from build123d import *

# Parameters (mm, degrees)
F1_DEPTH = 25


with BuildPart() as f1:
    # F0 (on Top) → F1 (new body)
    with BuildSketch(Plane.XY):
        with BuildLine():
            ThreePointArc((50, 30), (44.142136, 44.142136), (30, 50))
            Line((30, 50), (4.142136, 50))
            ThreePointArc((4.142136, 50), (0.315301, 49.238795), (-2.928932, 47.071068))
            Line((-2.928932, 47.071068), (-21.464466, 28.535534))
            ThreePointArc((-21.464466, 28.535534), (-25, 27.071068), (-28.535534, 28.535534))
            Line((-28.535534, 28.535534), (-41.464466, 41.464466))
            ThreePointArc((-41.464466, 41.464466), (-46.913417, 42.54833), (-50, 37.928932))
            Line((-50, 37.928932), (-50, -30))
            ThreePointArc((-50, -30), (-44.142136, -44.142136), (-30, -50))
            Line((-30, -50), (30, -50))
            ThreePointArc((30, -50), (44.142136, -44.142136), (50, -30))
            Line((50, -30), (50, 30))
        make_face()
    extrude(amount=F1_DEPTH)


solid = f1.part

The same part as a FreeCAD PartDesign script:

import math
import FreeCAD as App
import Part
import Sketcher
Q = App.Units.Quantity

doc = App.newDocument("Part")
params = doc.addObject("Spreadsheet::Sheet", "Params")
for row, (alias, value) in enumerate([
    ("sketch1_radius", "19.999999 mm"),
    ("sketch1_radius2", "5 mm"),
    ("sketch1_width", "60 mm"),
    ("pad1_length", "25 mm"),
], start=1):
    params.set(f"A{row}", alias)
    params.set(f"B{row}", "=" + value)
    params.setAlias(f"B{row}", alias)

body = doc.addObject("PartDesign::Body", "Body")

# Sketch on XY plane
sketch1 = body.newObject("Sketcher::SketchObject", "Sketch")
sketch1.AttachmentSupport = (doc.getObject("XY_Plane"), [""])
sketch1.MapMode = "FlatFace"
sketch1.addGeometry([
    Part.ArcOfCircle(Part.Circle(App.Vector(30, 30, 0), App.Vector(0, 0, 1), 20), math.radians(0), math.radians(90)),  # 0
    Part.LineSegment(App.Vector(30, 50, 0), App.Vector(4.1, 50, 0)),  # 1
    Part.ArcOfCircle(Part.Circle(App.Vector(4.1, 40, 0), App.Vector(0, 0, 1), 10), math.radians(90), math.radians(135)),  # 2
    Part.LineSegment(App.Vector(-2.9, 47.1, 0), App.Vector(-21.5, 28.5, 0)),  # 3
    Part.ArcOfCircle(Part.Circle(App.Vector(-25, 32.1, 0), App.Vector(0, 0, 1), 5), math.radians(-135), math.radians(-45)),  # 4
    Part.LineSegment(App.Vector(-28.5, 28.5, 0), App.Vector(-41.5, 41.5, 0)),  # 5
    Part.ArcOfCircle(Part.Circle(App.Vector(-45, 37.9, 0), App.Vector(0, 0, 1), 5), math.radians(45), math.radians(180)),  # 6
    Part.LineSegment(App.Vector(-50, 37.9, 0), App.Vector(-50, -30, 0)),  # 7
    Part.ArcOfCircle(Part.Circle(App.Vector(-30, -30, 0), App.Vector(0, 0, 1), 20), math.radians(180), math.radians(270)),  # 8
    Part.LineSegment(App.Vector(-30, -50, 0), App.Vector(30, -50, 0)),  # 9
    Part.ArcOfCircle(Part.Circle(App.Vector(30, -30, 0), App.Vector(0, 0, 1), 20), math.radians(-90), math.radians(0)),  # 10
    Part.LineSegment(App.Vector(50, -30, 0), App.Vector(50, 30, 0)),  # 11
], False)
sketch1.addConstraint([
    Sketcher.Constraint("Tangent", 0, 2, 1, 1),
    Sketcher.Constraint("Tangent", 1, 2, 2, 1),
    Sketcher.Constraint("Tangent", 2, 2, 3, 1),
    Sketcher.Constraint("Tangent", 3, 2, 4, 2),
    Sketcher.Constraint("Tangent", 4, 1, 5, 1),
    Sketcher.Constraint("Tangent", 5, 2, 6, 1),
    Sketcher.Constraint("Tangent", 6, 2, 7, 1),
    Sketcher.Constraint("Tangent", 7, 2, 8, 1),
    Sketcher.Constraint("Tangent", 8, 2, 9, 1),
    Sketcher.Constraint("Tangent", 9, 2, 10, 1),
    Sketcher.Constraint("Tangent", 10, 2, 11, 1),
    Sketcher.Constraint("Tangent", 11, 2, 0, 1),
    Sketcher.Constraint("Horizontal", 1),
    Sketcher.Constraint("Vertical", 7),
    Sketcher.Constraint("Horizontal", 9),
    Sketcher.Constraint("Vertical", 11),
    Sketcher.Constraint("Equal", 4, 6),
    Sketcher.Constraint("Equal", 0, 8),
    Sketcher.Constraint("Equal", 8, 10),
    Sketcher.Constraint("Symmetric", 0, 3, 8, 3, -1, 1),
    Sketcher.Constraint("Perpendicular", 3, 5),
    Sketcher.Constraint("Horizontal", 3, 2, 4, 1),
    Sketcher.Constraint("Equal", 9, 11),
    Sketcher.Constraint("Radius", 0, Q("19.999999 mm")),
    Sketcher.Constraint("Radius", 4, Q("5 mm")),
    Sketcher.Constraint("DistanceX", 9, 1, 9, 2, Q("60 mm")),
    Sketcher.Constraint("DistanceX", 4, 3, -1, 1, Q("25 mm")),
    Sketcher.Constraint("DistanceY", 8, 3, 2, 3, Q("69.999999 mm")),
    Sketcher.Constraint("DistanceY", 4, 3, 2, 2, Q("15 mm")),
])
sketch1.setExpression("Constraints[23]", "Params.sketch1_radius")
sketch1.setExpression("Constraints[24]", "Params.sketch1_radius2")
sketch1.setExpression("Constraints[25]", "Params.sketch1_width")
pad1 = body.newObject("PartDesign::Pad", "Pad")
pad1.Profile = sketch1
pad1.setExpression("Length", "Params.pad1_length")

doc.recompute()
